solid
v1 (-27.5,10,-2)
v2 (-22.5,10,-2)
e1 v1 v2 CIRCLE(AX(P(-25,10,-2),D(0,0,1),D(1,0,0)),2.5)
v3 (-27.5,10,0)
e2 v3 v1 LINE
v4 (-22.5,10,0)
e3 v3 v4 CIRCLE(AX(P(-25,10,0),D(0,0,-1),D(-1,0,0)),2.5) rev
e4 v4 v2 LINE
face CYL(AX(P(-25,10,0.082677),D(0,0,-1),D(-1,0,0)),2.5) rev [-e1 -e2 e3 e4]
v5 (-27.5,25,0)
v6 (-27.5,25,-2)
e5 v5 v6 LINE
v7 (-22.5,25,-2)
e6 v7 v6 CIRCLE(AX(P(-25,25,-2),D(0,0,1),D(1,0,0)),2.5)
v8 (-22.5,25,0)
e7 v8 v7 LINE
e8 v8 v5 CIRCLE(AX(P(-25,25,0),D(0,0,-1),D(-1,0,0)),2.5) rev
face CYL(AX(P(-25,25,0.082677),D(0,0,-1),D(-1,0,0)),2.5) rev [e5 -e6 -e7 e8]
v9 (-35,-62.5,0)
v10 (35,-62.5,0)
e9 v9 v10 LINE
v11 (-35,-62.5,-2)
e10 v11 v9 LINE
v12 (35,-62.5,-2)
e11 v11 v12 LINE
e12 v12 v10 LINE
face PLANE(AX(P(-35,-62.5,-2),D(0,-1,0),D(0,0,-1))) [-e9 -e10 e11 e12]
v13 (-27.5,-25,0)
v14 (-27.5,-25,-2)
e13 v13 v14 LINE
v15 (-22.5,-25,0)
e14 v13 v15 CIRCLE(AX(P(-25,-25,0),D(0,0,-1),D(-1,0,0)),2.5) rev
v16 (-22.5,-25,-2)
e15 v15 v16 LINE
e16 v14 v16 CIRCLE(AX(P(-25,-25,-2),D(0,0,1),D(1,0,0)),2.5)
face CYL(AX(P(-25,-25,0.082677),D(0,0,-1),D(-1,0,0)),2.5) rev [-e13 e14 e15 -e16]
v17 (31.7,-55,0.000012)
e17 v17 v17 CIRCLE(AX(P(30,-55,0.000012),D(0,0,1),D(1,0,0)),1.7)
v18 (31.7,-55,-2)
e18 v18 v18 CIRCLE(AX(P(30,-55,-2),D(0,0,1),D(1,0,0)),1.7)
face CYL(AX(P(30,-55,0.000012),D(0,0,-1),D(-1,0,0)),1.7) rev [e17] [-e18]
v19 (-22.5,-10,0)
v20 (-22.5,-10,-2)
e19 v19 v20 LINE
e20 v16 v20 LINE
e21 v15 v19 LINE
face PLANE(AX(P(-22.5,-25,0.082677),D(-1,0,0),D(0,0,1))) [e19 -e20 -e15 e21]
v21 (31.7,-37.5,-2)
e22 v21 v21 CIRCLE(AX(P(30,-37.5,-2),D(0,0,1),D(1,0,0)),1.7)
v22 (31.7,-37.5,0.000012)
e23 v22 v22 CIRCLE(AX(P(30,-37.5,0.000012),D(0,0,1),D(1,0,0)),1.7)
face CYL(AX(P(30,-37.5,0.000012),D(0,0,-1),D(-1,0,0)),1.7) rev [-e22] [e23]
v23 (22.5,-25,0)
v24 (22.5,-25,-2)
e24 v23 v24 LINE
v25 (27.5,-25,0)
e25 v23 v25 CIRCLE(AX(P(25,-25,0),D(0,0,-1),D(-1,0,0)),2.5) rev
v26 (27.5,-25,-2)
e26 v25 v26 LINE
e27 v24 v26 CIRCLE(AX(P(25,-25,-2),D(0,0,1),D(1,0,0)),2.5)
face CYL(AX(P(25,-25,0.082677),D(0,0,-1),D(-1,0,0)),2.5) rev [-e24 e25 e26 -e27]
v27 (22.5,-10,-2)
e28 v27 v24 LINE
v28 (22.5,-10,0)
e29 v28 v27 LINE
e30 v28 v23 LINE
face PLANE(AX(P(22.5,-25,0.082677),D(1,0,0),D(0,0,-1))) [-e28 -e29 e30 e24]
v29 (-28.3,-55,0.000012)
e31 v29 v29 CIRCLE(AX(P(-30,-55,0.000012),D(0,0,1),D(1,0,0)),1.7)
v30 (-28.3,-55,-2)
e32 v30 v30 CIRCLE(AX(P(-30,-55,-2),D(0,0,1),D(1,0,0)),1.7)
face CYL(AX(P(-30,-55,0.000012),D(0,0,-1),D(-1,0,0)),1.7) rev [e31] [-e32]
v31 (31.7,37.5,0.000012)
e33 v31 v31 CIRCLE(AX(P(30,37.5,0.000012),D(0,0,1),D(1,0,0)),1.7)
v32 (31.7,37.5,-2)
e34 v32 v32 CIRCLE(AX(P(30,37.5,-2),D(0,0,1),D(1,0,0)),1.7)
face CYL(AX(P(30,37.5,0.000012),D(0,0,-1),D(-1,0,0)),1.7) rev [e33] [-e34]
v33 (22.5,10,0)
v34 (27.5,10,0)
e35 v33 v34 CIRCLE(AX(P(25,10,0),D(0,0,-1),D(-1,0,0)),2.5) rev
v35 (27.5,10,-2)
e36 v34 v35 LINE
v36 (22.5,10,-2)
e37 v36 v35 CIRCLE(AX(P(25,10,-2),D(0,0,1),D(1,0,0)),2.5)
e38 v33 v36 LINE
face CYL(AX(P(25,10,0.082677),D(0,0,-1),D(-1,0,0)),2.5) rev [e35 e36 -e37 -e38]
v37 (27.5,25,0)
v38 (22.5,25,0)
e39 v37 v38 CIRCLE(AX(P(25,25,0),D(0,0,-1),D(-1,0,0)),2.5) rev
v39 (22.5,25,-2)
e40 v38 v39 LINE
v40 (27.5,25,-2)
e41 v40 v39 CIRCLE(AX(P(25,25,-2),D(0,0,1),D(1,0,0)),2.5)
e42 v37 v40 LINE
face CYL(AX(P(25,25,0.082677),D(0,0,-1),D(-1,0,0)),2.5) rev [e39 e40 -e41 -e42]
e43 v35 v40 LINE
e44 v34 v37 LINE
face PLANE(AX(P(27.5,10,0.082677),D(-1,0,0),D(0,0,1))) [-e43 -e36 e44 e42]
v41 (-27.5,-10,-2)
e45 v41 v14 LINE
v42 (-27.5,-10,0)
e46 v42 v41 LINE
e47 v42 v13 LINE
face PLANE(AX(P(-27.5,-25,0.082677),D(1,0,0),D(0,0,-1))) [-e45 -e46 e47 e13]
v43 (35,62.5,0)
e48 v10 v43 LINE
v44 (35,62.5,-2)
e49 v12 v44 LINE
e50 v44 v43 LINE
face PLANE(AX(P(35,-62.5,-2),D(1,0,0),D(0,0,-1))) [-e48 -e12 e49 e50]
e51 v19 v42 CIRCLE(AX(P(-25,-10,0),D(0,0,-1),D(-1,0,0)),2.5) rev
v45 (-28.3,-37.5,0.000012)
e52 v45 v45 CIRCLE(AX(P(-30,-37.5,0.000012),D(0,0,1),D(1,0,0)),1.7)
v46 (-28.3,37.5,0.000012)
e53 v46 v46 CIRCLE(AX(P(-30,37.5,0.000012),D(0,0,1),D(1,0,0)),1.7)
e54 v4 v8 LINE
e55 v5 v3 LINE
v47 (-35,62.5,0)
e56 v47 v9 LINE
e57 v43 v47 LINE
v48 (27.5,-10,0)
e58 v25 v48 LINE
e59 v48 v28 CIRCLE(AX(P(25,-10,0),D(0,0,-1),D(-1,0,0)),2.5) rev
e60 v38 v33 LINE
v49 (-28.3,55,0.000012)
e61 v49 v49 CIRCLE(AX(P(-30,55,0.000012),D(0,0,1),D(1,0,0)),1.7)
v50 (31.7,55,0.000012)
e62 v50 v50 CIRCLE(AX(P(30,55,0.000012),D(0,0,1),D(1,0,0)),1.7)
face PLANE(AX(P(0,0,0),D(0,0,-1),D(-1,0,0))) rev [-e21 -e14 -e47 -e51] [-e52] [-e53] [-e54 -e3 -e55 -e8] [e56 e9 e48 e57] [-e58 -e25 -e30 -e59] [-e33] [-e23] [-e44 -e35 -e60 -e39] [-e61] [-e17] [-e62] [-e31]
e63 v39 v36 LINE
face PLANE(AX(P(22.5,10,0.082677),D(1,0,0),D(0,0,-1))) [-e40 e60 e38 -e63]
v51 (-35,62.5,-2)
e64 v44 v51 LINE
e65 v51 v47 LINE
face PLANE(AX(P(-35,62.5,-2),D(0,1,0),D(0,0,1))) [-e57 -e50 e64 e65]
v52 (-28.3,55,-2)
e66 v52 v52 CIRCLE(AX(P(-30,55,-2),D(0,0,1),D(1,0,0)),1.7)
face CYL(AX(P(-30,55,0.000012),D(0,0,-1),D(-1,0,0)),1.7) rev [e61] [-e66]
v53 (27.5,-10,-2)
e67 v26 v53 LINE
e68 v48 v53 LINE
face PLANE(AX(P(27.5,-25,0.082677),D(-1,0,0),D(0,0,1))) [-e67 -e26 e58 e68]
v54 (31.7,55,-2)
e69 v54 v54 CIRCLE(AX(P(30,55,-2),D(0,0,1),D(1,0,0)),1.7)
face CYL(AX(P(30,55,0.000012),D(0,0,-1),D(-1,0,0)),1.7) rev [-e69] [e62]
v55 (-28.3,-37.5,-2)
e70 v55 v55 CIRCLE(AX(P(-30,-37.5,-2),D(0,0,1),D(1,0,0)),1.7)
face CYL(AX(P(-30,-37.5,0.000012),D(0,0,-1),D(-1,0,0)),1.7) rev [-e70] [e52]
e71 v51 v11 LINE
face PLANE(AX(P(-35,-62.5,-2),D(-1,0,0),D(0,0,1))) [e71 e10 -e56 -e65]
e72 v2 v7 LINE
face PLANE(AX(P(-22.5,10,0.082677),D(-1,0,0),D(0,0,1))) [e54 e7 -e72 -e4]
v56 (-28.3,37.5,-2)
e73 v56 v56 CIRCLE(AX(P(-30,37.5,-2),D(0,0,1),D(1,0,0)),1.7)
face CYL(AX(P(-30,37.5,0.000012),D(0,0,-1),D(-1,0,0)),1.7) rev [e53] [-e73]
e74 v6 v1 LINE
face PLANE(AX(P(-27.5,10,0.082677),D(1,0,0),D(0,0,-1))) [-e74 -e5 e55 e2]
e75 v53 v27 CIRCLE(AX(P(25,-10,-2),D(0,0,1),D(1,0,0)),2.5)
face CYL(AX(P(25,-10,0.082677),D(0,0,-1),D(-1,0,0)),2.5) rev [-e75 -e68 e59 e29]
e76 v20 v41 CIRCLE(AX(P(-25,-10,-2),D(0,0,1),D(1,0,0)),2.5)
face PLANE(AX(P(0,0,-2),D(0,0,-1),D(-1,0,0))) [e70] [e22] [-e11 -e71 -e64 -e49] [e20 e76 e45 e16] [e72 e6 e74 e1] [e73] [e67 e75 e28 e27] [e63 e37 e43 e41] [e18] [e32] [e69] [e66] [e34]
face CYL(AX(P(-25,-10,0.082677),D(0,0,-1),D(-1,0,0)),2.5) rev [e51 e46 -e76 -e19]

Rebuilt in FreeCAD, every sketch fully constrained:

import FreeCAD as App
import Part
import Sketcher

V = App.Vector
Q = App.Units.Quantity

doc = App.newDocument("Part")
body = doc.addObject("PartDesign::Body", "Body")

# Sketch on XY plane
sketch1 = body.newObject("Sketcher::SketchObject", "Sketch")
sketch1.AttachmentSupport = (doc.getObject("XY_Plane"), [""])
sketch1.MapMode = "FlatFace"
sketch1.addGeometry([
    Part.LineSegment(V(-35, 62, 0), V(-35, -62, 0)),
    Part.LineSegment(V(-35, -62, 0), V(35, -62, 0)),
    Part.LineSegment(V(35, -62, 0), V(35, 62, 0)),
    Part.LineSegment(V(35, 62, 0), V(-35, 62, 0)),
], False)
sketch1.addConstraint([
    Sketcher.Constraint("Coincident", 0, 2, 1, 1),
    Sketcher.Constraint("Coincident", 1, 2, 2, 1),
    Sketcher.Constraint("Coincident", 2, 2, 3, 1),
    Sketcher.Constraint("Coincident", 3, 2, 0, 1),
    Sketcher.Constraint("Vertical", 0),
    Sketcher.Constraint("Horizontal", 1),
    Sketcher.Constraint("Vertical", 2),
    Sketcher.Constraint("Horizontal", 3),
    Sketcher.Constraint("Symmetric", 0, 2, 2, 2, -1, 1),
    Sketcher.Constraint("DistanceX", 1, 1, 1, 2, Q("70 mm")),
    Sketcher.Constraint("DistanceY", 0, 2, 0, 1, Q("125 mm")),
])
pad1 = body.newObject("PartDesign::Pad", "Pad")
pad1.Profile = sketch1
pad1.Length = 2
pad1.Reversed = True

# Sketch on XY plane
sketch2 = body.newObject("Sketcher::SketchObject", "Sketch001")
sketch2.AttachmentSupport = (doc.getObject("XY_Plane"), [""])
sketch2.MapMode = "FlatFace"
sketch2.addGeometry([
    Part.Circle(V(-30, -55, 0), V(0, 0, 1), 1.7),  # 0
    Part.Circle(V(-30, -37.5, 0), V(0, 0, 1), 1.7),  # 1
    Part.Circle(V(-30, 37.5, 0), V(0, 0, 1), 1.7),  # 2
    Part.Circle(V(-30, 55, 0), V(0, 0, 1), 1.7),  # 3
    Part.Circle(V(30, -55, 0), V(0, 0, 1), 1.7),  # 4
    Part.Circle(V(30, -37.5, 0), V(0, 0, 1), 1.7),  # 5
    Part.Circle(V(30, 37.5, 0), V(0, 0, 1), 1.7),  # 6
    Part.Circle(V(30, 55, 0), V(0, 0, 1), 1.7),  # 7
], False)
sketch2.addConstraint([
    Sketcher.Constraint("Equal", 0, 1),
    Sketcher.Constraint("Equal", 1, 2),
    Sketcher.Constraint("Equal", 2, 3),
    Sketcher.Constraint("Equal", 3, 4),
    Sketcher.Constraint("Equal", 4, 5),
    Sketcher.Constraint("Equal", 5, 6),
    Sketcher.Constraint("Equal", 6, 7),
    Sketcher.Constraint("Symmetric", 3, 3, 4, 3, -1, 1),
    Sketcher.Constraint("Symmetric", 2, 3, 5, 3, -1, 1),
    Sketcher.Constraint("Symmetric", 1, 3, 6, 3, -1, 1),
    Sketcher.Constraint("Symmetric", 0, 3, 7, 3, -1, 1),
    Sketcher.Constraint("Symmetric", 0, 3, 4, 3, -2),
    Sketcher.Constraint("Symmetric", 1, 3, 5, 3, -2),
    Sketcher.Constraint("Vertical", 0, 3, 1, 3),
    Sketcher.Constraint("Diameter", 0, Q("3.4 mm")),
    Sketcher.Constraint("DistanceX", 0, 3, -1, 1, Q("30 mm")),
    Sketcher.Constraint("DistanceY", 0, 3, -1, 1, Q("55 mm")),
    Sketcher.Constraint("DistanceY", 1, 3, 2, 3, Q("75 mm")),
])
pocket1 = body.newObject("PartDesign::Pocket", "Pocket")
pocket1.Profile = sketch2
pocket1.Type = "ThroughAll"
pocket1.Midplane = True

# Sketch on XY plane
sketch3 = body.newObject("Sketcher::SketchObject", "Sketch002")
sketch3.AttachmentSupport = (doc.getObject("XY_Plane"), [""])
sketch3.MapMode = "FlatFace"
sketch3.addGeometry([
    Part.LineSegment(V(-28, -10, 0), V(-28, -25, 0)),  # 0
    Part.LineSegment(V(-28, -25, 0), V(-22, -25, 0)),  # 1
    Part.LineSegment(V(-22, -25, 0), V(-22, -10, 0)),  # 2
    Part.LineSegment(V(-22, -10, 0), V(-28, -10, 0)),  # 3
    Part.LineSegment(V(-28, 25, 0), V(-28, 10, 0)),  # 4
    Part.LineSegment(V(-28, 10, 0), V(-22, 10, 0)),  # 5
    Part.LineSegment(V(-22, 10, 0), V(-22, 25, 0)),  # 6
    Part.LineSegment(V(-22, 25, 0), V(-28, 25, 0)),  # 7
    Part.LineSegment(V(22, -10, 0), V(22, -25, 0)),  # 8
    Part.LineSegment(V(22, -25, 0), V(28, -25, 0)),  # 9
    Part.LineSegment(V(28, -25, 0), V(28, -10, 0)),  # 10
    Part.LineSegment(V(28, -10, 0), V(22, -10, 0)),  # 11
    Part.LineSegment(V(22, 25, 0), V(22, 10, 0)),  # 12
    Part.LineSegment(V(22, 10, 0), V(28, 10, 0)),  # 13
    Part.LineSegment(V(28, 10, 0), V(28, 25, 0)),  # 14
    Part.LineSegment(V(28, 25, 0), V(22, 25, 0)),  # 15
], False)
sketch3.addConstraint([
    Sketcher.Constraint("Coincident", 0, 2, 1, 1),
    Sketcher.Constraint("Coincident", 1, 2, 2, 1),
    Sketcher.Constraint("Coincident", 2, 2, 3, 1),
    Sketcher.Constraint("Coincident", 3, 2, 0, 1),
    Sketcher.Constraint("Coincident", 4, 2, 5, 1),
    Sketcher.Constraint("Coincident", 5, 2, 6, 1),
    Sketcher.Constraint("Coincident", 6, 2, 7, 1),
    Sketcher.Constraint("Coincident", 7, 2, 4, 1),
    Sketcher.Constraint("Coincident", 8, 2, 9, 1),
    Sketcher.Constraint("Coincident", 9, 2, 10, 1),
    Sketcher.Constraint("Coincident", 10, 2, 11, 1),
    Sketcher.Constraint("Coincident", 11, 2, 8, 1),
    Sketcher.Constraint("Coincident", 12, 2, 13, 1),
    Sketcher.Constraint("Coincident", 13, 2, 14, 1),
    Sketcher.Constraint("Coincident", 14, 2, 15, 1),
    Sketcher.Constraint("Coincident", 15, 2, 12, 1),
    Sketcher.Constraint("Vertical", 0),
    Sketcher.Constraint("Horizontal", 1),
    Sketcher.Constraint("Vertical", 2),
    Sketcher.Constraint("Horizontal", 3),
    Sketcher.Constraint("Vertical", 4),
    Sketcher.Constraint("Horizontal", 5),
    Sketcher.Constraint("Vertical", 6),
    Sketcher.Constraint("Horizontal", 7),
    Sketcher.Constraint("Vertical", 8),
    Sketcher.Constraint("Horizontal", 9),
    Sketcher.Constraint("Vertical", 10),
    Sketcher.Constraint("Horizontal", 11),
    Sketcher.Constraint("Vertical", 12),
    Sketcher.Constraint("Horizontal", 13),
    Sketcher.Constraint("Vertical", 14),
    Sketcher.Constraint("Horizontal", 15),
    Sketcher.Constraint("Symmetric", 6, 2, 8, 2, -1, 1),
    Sketcher.Constraint("Symmetric", 4, 2, 10, 2, -1, 1),
    Sketcher.Constraint("Symmetric", 2, 2, 12, 2, -1, 1),
    Sketcher.Constraint("Symmetric", 0, 2, 14, 2, -1, 1),
    Sketcher.Constraint("Symmetric", 1, 2, 8, 2, -2),
    Sketcher.Constraint("Symmetric", 3, 2, 10, 2, -2),
    Sketcher.Constraint("DistanceX", 1, 1, 1, 2, Q("5 mm")),
    Sketcher.Constraint("DistanceY", 0, 2, 0, 1, Q("15 mm")),
    Sketcher.Constraint("DistanceY", 0, 2, -1, 1, Q("25 mm")),
    Sketcher.Constraint("DistanceX", 1, 2, 8, 2, Q("45 mm")),
])
pocket2 = body.newObject("PartDesign::Pocket", "Pocket001")
pocket2.Profile = sketch3
pocket2.Type = "ThroughAll"
pocket2.Midplane = True

# Sketch on XY plane
sketch4 = body.newObject("Sketcher::SketchObject", "Sketch003")
sketch4.AttachmentSupport = (doc.getObject("XY_Plane"), [""])
sketch4.MapMode = "FlatFace"
sketch4.addGeometry([
    Part.Circle(V(-25, -25, 0), V(0, 0, 1), 2.5),  # 0
    Part.Circle(V(-25, -10, 0), V(0, 0, 1), 2.5),  # 1
    Part.Circle(V(-25, 10, 0), V(0, 0, 1), 2.5),  # 2
    Part.Circle(V(-25, 25, 0), V(0, 0, 1), 2.5),  # 3
    Part.Circle(V(25, -25, 0), V(0, 0, 1), 2.5),  # 4
    Part.Circle(V(25, -10, 0), V(0, 0, 1), 2.5),  # 5
    Part.Circle(V(25, 10, 0), V(0, 0, 1), 2.5),  # 6
    Part.Circle(V(25, 25, 0), V(0, 0, 1), 2.5),  # 7
], False)
sketch4.addConstraint([
    Sketcher.Constraint("Equal", 0, 1),
    Sketcher.Constraint("Equal", 1, 2),
    Sketcher.Constraint("Equal", 2, 3),
    Sketcher.Constraint("Equal", 3, 4),
    Sketcher.Constraint("Equal", 4, 5),
    Sketcher.Constraint("Equal", 5, 6),
    Sketcher.Constraint("Equal", 6, 7),
    Sketcher.Constraint("Symmetric", 3, 3, 4, 3, -1, 1),
    Sketcher.Constraint("Symmetric", 2, 3, 5, 3, -1, 1),
    Sketcher.Constraint("Symmetric", 1, 3, 6, 3, -1, 1),
    Sketcher.Constraint("Symmetric", 0, 3, 7, 3, -1, 1),
    Sketcher.Constraint("Symmetric", 0, 3, 4, 3, -2),
    Sketcher.Constraint("Symmetric", 1, 3, 5, 3, -2),
    Sketcher.Constraint("Vertical", 0, 3, 1, 3),
    Sketcher.Constraint("Diameter", 0, Q("5 mm")),
    Sketcher.Constraint("DistanceX", 0, 3, -1, 1, Q("25 mm")),
    Sketcher.Constraint("DistanceY", 0, 3, -1, 1, Q("25 mm")),
    Sketcher.Constraint("DistanceY", 1, 3, -1, 1, Q("10 mm")),
])
pocket3 = body.newObject("PartDesign::Pocket", "Pocket002")
pocket3.Profile = sketch4
pocket3.Type = "ThroughAll"
pocket3.Midplane = True

doc.recompute()
